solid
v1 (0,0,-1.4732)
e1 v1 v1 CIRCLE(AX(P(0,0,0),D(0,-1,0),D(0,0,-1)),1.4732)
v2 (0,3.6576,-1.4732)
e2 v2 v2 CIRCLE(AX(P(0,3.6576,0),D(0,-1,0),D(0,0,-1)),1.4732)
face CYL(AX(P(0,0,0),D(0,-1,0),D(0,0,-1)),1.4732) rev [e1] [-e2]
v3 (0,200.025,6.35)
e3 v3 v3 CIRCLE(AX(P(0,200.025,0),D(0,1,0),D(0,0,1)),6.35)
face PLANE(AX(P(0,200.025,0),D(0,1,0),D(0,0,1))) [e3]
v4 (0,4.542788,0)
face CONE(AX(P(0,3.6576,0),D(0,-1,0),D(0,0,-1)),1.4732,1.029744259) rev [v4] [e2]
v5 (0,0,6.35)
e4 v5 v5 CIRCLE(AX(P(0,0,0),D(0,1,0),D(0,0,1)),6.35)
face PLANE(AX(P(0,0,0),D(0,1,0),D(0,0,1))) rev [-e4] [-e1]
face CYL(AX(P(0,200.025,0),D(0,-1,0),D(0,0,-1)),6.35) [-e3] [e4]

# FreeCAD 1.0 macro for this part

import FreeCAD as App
import Part
import Sketcher
Q = App.Units.Quantity

doc = App.newDocument("Part")
body = doc.addObject("PartDesign::Body", "Body")

# Sketch on XZ plane
sketch1 = body.newObject("Sketcher::SketchObject", "Sketch")
sketch1.AttachmentSupport = (doc.getObject("XZ_Plane"), [""])
sketch1.MapMode = "FlatFace"
sketch1.addGeometry(Part.Circle(App.Vector(0, 0, 0), App.Vector(0, 0, 1), 6), False)
sketch1.addConstraint([
    Sketcher.Constraint("Coincident", 0, 3, -1, 1),
    Sketcher.Constraint("Diameter", 0, Q("0.5 in")),
])
pad1 = body.newObject("PartDesign::Pad", "Pad")
pad1.Profile = sketch1
pad1.Length = Q("7.875 in")
pad1.Reversed = True

# Sketch on XZ plane
sketch2 = body.newObject("Sketcher::SketchObject", "Sketch001")
sketch2.AttachmentSupport = (doc.getObject("XZ_Plane"), [""])
sketch2.MapMode = "FlatFace"
sketch2.addGeometry(Part.Circle(App.Vector(0, 0, 0), App.Vector(0, 0, 1), 1.5), False)
sketch2.addConstraint([
    Sketcher.Constraint("Coincident", 0, 3, -1, 1),
    Sketcher.Constraint("Diameter", 0, Q("0.116 in")),
])
doc.recompute()
hole = body.newObject("PartDesign::Hole", "Hole")
hole.Profile = sketch2
hole.ThreadType = "None"
hole.Diameter = Q("0.116 in")
hole.DepthType = "Dimension"
hole.Depth = Q("0.144 in")
hole.DrillPoint = "Angled"
hole.DrillPointAngle = 118

doc.recompute()
